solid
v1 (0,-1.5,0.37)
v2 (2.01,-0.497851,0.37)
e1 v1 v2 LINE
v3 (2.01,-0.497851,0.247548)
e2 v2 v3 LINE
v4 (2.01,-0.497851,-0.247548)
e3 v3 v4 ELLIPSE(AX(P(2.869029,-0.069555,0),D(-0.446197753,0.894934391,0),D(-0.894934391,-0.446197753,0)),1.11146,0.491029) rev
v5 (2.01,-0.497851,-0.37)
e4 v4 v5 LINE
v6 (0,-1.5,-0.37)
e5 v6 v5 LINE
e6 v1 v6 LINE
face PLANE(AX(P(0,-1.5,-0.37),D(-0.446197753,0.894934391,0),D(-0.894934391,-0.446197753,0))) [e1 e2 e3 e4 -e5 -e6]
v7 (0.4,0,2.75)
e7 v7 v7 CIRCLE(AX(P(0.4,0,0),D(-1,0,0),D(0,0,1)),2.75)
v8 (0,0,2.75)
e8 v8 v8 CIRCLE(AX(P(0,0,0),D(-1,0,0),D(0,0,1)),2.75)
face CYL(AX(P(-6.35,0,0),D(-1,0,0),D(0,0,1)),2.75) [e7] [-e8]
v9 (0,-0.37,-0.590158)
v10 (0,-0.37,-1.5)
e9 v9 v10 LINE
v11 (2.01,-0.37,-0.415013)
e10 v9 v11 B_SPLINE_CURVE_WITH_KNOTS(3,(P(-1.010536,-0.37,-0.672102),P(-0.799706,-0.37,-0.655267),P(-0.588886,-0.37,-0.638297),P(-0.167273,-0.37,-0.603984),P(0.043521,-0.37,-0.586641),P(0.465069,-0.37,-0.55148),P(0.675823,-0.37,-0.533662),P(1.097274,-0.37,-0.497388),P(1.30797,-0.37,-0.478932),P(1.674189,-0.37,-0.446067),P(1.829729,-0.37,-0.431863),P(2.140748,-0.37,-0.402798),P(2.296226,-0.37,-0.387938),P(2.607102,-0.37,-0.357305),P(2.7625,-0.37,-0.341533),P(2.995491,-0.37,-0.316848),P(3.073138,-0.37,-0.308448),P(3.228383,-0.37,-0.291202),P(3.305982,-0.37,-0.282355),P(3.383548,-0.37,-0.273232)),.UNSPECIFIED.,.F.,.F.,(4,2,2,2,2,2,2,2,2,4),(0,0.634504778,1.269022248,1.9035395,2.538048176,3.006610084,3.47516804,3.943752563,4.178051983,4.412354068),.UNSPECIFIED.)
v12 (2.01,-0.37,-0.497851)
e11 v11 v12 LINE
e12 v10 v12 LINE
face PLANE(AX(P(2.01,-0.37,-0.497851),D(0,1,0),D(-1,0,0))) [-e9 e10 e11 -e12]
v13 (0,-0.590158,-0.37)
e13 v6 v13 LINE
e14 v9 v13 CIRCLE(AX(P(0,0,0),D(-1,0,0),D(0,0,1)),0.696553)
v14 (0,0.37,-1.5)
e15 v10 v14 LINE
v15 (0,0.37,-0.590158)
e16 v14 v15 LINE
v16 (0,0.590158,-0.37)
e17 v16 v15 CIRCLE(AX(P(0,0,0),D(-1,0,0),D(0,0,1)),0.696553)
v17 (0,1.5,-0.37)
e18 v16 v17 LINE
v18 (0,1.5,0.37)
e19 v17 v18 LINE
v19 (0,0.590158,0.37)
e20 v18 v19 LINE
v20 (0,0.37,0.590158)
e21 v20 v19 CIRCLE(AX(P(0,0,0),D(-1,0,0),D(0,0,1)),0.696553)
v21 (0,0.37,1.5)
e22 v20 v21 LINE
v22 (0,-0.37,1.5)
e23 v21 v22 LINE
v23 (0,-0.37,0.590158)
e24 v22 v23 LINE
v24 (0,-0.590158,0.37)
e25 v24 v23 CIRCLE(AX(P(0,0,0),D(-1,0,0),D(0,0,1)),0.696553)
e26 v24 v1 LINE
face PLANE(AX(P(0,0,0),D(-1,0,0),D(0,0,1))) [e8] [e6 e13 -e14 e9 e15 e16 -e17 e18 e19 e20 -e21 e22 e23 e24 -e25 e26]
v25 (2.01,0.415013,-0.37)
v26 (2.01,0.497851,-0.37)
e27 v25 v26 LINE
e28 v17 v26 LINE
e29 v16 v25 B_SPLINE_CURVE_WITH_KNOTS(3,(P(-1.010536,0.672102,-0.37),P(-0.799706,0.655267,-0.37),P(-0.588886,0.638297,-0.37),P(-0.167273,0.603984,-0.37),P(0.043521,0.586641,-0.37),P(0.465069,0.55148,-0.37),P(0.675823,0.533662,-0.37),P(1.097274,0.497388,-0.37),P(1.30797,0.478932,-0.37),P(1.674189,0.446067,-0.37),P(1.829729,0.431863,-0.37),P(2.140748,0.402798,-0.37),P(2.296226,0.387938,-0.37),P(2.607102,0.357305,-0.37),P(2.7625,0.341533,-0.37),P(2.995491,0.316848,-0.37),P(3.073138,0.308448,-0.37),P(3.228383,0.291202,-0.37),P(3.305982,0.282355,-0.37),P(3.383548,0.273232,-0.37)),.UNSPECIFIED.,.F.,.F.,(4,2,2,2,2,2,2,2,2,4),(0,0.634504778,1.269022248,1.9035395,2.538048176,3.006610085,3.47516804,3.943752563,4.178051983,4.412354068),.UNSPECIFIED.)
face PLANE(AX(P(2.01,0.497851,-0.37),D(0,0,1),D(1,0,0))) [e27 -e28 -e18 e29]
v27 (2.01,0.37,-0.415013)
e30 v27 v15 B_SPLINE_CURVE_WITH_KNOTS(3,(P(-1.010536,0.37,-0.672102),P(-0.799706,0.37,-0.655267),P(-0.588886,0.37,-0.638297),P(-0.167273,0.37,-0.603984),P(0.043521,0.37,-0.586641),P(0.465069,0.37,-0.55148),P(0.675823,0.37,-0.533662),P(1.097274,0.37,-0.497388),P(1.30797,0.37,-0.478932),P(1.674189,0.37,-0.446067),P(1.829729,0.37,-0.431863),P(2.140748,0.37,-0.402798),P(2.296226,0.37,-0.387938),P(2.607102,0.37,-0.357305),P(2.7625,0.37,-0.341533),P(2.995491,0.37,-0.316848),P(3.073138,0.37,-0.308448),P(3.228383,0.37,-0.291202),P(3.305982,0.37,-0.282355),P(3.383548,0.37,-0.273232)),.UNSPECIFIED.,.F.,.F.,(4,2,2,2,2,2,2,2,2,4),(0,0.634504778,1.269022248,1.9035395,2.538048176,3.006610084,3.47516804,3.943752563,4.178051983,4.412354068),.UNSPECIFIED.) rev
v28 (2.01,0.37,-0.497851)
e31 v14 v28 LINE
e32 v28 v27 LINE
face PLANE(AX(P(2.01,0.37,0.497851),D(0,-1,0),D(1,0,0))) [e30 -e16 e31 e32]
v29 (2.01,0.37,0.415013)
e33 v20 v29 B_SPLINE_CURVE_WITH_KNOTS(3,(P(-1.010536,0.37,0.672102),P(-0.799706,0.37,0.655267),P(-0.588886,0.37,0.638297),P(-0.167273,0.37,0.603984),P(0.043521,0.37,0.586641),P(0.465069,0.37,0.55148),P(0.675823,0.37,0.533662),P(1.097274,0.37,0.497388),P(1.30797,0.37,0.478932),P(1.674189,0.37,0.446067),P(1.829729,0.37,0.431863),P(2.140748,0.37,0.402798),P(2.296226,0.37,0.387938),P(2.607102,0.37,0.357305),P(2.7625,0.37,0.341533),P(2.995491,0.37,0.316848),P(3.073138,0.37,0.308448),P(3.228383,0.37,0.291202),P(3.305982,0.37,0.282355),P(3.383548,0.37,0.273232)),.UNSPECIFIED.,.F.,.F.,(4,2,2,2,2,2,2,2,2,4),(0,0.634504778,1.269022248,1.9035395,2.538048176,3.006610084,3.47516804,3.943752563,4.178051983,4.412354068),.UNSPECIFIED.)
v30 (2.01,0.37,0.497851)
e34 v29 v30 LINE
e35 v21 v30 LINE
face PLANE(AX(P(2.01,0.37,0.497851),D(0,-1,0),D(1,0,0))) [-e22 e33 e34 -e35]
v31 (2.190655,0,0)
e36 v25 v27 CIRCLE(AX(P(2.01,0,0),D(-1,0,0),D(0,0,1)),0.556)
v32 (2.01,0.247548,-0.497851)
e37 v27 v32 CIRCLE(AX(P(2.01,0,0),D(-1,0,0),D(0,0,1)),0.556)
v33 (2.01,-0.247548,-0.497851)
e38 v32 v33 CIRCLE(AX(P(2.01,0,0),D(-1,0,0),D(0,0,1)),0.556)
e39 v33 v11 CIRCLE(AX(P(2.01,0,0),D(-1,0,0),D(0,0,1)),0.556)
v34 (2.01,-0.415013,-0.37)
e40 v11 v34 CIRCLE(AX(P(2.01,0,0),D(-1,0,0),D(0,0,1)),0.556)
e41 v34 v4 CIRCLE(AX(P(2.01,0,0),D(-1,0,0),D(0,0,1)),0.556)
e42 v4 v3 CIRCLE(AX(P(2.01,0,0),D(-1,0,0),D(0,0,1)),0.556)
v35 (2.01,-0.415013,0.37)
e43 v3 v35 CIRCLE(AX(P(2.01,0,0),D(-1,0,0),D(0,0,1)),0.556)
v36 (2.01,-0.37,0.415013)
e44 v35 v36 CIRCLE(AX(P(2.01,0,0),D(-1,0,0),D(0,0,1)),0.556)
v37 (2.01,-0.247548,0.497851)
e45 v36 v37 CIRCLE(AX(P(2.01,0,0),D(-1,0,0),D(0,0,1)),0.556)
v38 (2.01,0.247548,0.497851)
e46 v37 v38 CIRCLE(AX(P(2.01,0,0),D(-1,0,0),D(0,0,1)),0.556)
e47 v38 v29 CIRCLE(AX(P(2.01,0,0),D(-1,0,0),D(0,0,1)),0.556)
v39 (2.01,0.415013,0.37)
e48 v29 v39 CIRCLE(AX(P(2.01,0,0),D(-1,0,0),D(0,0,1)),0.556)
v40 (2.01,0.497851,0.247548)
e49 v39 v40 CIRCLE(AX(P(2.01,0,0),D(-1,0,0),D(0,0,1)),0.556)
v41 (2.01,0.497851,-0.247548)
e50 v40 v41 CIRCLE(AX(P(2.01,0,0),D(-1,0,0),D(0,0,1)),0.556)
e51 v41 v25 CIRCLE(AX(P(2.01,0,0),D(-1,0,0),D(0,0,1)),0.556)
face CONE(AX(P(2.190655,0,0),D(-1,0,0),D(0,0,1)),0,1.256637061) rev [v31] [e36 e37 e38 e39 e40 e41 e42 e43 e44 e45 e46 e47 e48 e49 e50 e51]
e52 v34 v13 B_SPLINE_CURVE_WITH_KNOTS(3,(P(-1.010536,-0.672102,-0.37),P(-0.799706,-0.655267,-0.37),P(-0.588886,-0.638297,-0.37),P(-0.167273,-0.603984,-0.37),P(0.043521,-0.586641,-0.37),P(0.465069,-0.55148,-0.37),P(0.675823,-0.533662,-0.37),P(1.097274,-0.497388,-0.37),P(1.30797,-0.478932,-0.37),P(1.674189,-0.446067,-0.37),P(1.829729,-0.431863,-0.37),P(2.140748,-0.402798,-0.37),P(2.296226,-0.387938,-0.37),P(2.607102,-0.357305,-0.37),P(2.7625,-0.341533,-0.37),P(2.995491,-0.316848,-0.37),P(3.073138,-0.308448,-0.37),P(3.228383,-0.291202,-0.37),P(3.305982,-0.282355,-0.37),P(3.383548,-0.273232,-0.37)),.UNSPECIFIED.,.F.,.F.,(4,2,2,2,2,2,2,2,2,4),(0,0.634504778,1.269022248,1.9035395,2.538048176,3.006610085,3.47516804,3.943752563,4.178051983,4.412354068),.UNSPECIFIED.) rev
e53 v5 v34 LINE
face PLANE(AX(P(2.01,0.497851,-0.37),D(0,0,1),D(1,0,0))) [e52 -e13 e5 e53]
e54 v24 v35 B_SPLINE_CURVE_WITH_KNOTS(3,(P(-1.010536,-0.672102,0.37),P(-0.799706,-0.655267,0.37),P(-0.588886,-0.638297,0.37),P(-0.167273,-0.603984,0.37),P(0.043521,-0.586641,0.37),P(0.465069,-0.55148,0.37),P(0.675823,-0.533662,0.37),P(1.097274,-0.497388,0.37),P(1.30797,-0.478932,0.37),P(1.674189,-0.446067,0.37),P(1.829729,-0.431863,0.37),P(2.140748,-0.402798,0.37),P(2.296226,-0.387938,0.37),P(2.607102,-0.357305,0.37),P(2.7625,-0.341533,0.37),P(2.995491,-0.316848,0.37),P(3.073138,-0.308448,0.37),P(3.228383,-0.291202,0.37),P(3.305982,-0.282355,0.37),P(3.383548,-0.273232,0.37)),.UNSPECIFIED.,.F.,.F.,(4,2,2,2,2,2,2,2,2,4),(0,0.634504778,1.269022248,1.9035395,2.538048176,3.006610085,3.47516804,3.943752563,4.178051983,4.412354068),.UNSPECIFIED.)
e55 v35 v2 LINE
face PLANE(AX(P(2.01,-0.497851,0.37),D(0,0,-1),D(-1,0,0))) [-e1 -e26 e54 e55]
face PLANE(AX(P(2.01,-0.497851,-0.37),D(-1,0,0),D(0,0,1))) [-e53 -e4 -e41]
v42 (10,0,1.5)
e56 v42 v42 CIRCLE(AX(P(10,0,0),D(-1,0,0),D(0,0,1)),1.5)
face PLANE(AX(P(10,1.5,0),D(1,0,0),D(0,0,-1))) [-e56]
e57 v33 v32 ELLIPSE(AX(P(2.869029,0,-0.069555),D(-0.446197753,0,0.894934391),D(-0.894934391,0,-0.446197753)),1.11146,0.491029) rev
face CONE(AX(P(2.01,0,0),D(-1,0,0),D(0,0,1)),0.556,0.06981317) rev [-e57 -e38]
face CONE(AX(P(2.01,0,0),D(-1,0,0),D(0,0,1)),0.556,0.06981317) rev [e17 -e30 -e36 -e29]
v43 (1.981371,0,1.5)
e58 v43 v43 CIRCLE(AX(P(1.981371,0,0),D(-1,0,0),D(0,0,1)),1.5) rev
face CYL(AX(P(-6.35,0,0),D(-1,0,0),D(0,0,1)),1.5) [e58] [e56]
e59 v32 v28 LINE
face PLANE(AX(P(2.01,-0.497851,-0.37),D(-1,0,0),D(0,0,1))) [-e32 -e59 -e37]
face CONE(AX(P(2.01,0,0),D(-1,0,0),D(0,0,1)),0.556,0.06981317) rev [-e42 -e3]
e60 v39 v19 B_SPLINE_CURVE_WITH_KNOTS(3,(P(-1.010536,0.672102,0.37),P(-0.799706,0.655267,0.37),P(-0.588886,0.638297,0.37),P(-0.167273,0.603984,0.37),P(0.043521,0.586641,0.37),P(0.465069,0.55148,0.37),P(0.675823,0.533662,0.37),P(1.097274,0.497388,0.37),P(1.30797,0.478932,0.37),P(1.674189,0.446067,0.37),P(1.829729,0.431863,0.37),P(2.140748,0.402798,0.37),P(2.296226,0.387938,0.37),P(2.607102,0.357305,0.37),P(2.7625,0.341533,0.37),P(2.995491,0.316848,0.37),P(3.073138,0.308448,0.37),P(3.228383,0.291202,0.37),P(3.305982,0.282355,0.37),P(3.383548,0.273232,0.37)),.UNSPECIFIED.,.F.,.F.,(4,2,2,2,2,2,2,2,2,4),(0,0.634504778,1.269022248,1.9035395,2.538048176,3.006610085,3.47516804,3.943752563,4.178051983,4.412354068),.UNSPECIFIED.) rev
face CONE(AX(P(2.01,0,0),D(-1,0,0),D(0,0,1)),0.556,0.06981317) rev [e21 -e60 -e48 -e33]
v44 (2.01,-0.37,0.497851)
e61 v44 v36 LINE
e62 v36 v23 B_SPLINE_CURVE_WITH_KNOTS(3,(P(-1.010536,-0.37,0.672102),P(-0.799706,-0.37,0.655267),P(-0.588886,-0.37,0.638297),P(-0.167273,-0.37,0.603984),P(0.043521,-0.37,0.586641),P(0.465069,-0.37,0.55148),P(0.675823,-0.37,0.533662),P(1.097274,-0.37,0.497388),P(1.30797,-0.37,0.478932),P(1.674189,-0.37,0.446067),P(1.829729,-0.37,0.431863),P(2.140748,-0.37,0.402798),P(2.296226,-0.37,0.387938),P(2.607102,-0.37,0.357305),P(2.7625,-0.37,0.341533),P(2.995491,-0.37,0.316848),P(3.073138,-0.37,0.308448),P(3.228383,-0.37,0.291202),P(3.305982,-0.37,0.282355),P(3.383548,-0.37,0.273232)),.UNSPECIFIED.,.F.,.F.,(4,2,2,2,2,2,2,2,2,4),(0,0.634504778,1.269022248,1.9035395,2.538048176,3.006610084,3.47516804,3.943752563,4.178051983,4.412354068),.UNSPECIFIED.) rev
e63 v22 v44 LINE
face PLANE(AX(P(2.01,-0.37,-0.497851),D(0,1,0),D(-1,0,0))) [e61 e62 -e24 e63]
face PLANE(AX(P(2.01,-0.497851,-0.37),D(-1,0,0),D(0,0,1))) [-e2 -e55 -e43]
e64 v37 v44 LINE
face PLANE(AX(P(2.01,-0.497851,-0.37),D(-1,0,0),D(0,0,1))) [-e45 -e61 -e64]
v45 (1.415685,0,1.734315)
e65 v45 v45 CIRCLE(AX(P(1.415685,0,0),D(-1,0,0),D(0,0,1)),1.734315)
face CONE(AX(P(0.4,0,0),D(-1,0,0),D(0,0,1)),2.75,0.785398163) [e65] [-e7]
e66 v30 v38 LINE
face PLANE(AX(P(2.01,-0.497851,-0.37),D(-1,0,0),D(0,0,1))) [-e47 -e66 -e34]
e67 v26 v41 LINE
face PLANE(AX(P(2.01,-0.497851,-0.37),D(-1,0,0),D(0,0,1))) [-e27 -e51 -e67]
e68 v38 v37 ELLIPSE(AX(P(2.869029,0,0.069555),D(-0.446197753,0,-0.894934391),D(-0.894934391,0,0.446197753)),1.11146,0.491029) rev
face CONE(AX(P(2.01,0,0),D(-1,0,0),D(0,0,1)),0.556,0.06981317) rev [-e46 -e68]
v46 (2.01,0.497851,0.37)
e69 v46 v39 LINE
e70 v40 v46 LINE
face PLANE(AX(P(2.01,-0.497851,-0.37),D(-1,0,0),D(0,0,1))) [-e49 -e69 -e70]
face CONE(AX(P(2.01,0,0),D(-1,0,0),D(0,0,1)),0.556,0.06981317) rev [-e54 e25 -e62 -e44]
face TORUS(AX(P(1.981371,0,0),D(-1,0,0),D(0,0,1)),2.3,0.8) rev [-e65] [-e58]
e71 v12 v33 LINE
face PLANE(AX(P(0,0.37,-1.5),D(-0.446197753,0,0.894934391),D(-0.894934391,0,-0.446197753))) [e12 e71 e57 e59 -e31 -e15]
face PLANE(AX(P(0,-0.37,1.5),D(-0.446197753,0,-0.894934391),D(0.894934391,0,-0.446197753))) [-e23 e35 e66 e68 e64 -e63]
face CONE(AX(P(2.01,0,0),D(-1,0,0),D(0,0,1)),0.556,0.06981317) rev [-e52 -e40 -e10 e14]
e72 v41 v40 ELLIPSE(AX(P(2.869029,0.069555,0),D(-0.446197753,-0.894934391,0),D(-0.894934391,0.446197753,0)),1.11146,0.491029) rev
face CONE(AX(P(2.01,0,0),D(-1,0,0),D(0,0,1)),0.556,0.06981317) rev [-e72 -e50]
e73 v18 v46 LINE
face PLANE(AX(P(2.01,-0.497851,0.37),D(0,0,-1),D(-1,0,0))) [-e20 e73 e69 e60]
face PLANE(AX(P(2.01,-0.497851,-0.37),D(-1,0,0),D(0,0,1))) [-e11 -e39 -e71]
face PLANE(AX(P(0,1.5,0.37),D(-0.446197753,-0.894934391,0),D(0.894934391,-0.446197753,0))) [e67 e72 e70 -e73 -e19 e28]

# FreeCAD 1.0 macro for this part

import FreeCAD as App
import Part
import Sketcher
Q = App.Units.Quantity


def edges_at(feature, points):
    """Names of the edges that pass closest to the given points."""
    edges = feature.Shape.Edges
    near = lambda p: min(range(len(edges)), key=lambda i: edges[i].distToShape(Part.Vertex(*p))[0])
    return sorted({f"Edge{near(p) + 1}" for p in points})

doc = App.newDocument("Part")
params = doc.addObject("Spreadsheet::Sheet", "Params")
for row, (alias, value) in enumerate([
    ("sketch1_width", "10 mm"),
    ("sketch1_width2", "0.4 mm"),
    ("sketch1_height", "1.5 mm"),
    ("sketch1_width3", "8.35 mm"),
    ("revolution_angle", "360 deg"),
    ("fillet_radius", "0.8 mm"),
    ("sketch2_width", "3 mm"),
    ("sketch2_height", "0.74 mm"),
    ("sketch3_height", "0.74 mm"),
    ("groove_angle", "360 deg"),
], start=1):
    params.set(f"A{row}", alias)
    params.set(f"B{row}", "=" + value)
    params.setAlias(f"B{row}", alias)

body = doc.addObject("PartDesign::Body", "Body")

# Sketch on XY plane
sketch1 = body.newObject("Sketcher::SketchObject", "Sketch")
sketch1.AttachmentSupport = (doc.getObject("XY_Plane"), [""])
sketch1.MapMode = "FlatFace"
sketch1.addGeometry(Part.LineSegment(App.Vector(0, 2.75, 0), App.Vector(0, 0, 0)), False)
sketch1.addGeometry(Part.LineSegment(App.Vector(0, 0, 0), App.Vector(10, 0, 0)), False)
sketch1.addGeometry(Part.LineSegment(App.Vector(10, 0, 0), App.Vector(10, 1.5, 0)), False)
sketch1.addGeometry(Part.LineSegment(App.Vector(10, 1.5, 0), App.Vector(1.65, 1.5, 0)), False)
sketch1.addGeometry(Part.LineSegment(App.Vector(1.65, 1.5, 0), App.Vector(0.4, 2.75, 0)), False)
sketch1.addGeometry(Part.LineSegment(App.Vector(0.4, 2.75, 0), App.Vector(0, 2.75, 0)), False)
sketch1.addConstraint(Sketcher.Constraint("Coincident", 0, 2, 1, 1))
sketch1.addConstraint(Sketcher.Constraint("Coincident", 1, 2, 2, 1))
sketch1.addConstraint(Sketcher.Constraint("Coincident", 2, 2, 3, 1))
sketch1.addConstraint(Sketcher.Constraint("Coincident", 3, 2, 4, 1))
sketch1.addConstraint(Sketcher.Constraint("Coincident", 4, 2, 5, 1))
sketch1.addConstraint(Sketcher.Constraint("Coincident", 5, 2, 0, 1))
sketch1.addConstraint(Sketcher.Constraint("Vertical", 0))
sketch1.addConstraint(Sketcher.Constraint("Horizontal", 1))
sketch1.addConstraint(Sketcher.Constraint("Vertical", 2))
sketch1.addConstraint(Sketcher.Constraint("Horizontal", 3))
sketch1.addConstraint(Sketcher.Constraint("Horizontal", 5))
sketch1.addConstraint(Sketcher.Constraint("Coincident", 0, 2, -1, 1))
sketch1.addConstraint(Sketcher.Constraint("DistanceX", 1, 1, 1, 2, 10.0))
sketch1.addConstraint(Sketcher.Constraint("Angle", 4, Q("135 deg")))
sketch1.addConstraint(Sketcher.Constraint("DistanceX", 5, 2, 5, 1, 0.4))
sketch1.addConstraint(Sketcher.Constraint("DistanceY", 2, 1, 2, 2, 1.5))
sketch1.addConstraint(Sketcher.Constraint("DistanceX", 3, 2, 3, 1, 8.35))
sketch1.setExpression("Constraints[12]", "Params.sketch1_width")
sketch1.setExpression("Constraints[14]", "Params.sketch1_width2")
sketch1.setExpression("Constraints[15]", "Params.sketch1_height")
sketch1.setExpression("Constraints[16]", "Params.sketch1_width3")
revolution = body.newObject("PartDesign::Revolution", "Revolution")
revolution.Profile = sketch1
revolution.ReferenceAxis = (sketch1, ["H_Axis"])
revolution.setExpression("Angle", "Params.revolution_angle")
doc.recompute()

fillet = body.newObject("PartDesign::Fillet", "Fillet")
fillet.Base = (revolution, edges_at(revolution, [(1.65, 0, -1.5)]))
fillet.setExpression("Radius", "Params.fillet_radius")

# Sketch on YZ plane
sketch2 = body.newObject("Sketcher::SketchObject", "Sketch001")
sketch2.AttachmentSupport = (doc.getObject("YZ_Plane"), [""])
sketch2.MapMode = "FlatFace"
sketch2.addGeometry(Part.LineSegment(App.Vector(1.5, 0.4, 0), App.Vector(1.5, -0.4, 0)), False)
sketch2.addGeometry(Part.LineSegment(App.Vector(1.5, -0.4, 0), App.Vector(-1.5, -0.4, 0)), False)
sketch2.addGeometry(Part.LineSegment(App.Vector(-1.5, -0.4, 0), App.Vector(-1.5, 0.4, 0)), False)
sketch2.addGeometry(Part.LineSegment(App.Vector(-1.5, 0.4, 0), App.Vector(1.5, 0.4, 0)), False)
sketch2.addConstraint(Sketcher.Constraint("Coincident", 0, 2, 1, 1))
sketch2.addConstraint(Sketcher.Constraint("Coincident", 1, 2, 2, 1))
sketch2.addConstraint(Sketcher.Constraint("Coincident", 2, 2, 3, 1))
sketch2.addConstraint(Sketcher.Constraint("Coincident", 3, 2, 0, 1))
sketch2.addConstraint(Sketcher.Constraint("Vertical", 0))
sketch2.addConstraint(Sketcher.Constraint("Horizontal", 1))
sketch2.addConstraint(Sketcher.Constraint("Vertical", 2))
sketch2.addConstraint(Sketcher.Constraint("Horizontal", 3))
sketch2.addConstraint(Sketcher.Constraint("Symmetric", 0, 2, 2, 2, -1, 1))
sketch2.addConstraint(Sketcher.Constraint("DistanceX", 1, 2, 1, 1, 3.0))
sketch2.addConstraint(Sketcher.Constraint("DistanceY", 0, 2, 0, 1, 0.74))
sketch2.setExpression("Constraints[9]", "Params.sketch2_width")
sketch2.setExpression("Constraints[10]", "Params.sketch2_height")

# Sketch on YZ plane
sketch3 = body.newObject("Sketcher::SketchObject", "Sketch002")
sketch3.AttachmentSupport = (doc.getObject("YZ_Plane"), [""])
sketch3.MapMode = "FlatFace"
sketch3.AttachmentOffset = App.Placement(App.Vector(0, 0, 2.01), App.Rotation())
sketch3.addGeometry(Part.LineSegment(App.Vector(0.5, 0.4, 0), App.Vector(0.5, -0.4, 0)), False)
sketch3.addGeometry(Part.LineSegment(App.Vector(0.5, -0.4, 0), App.Vector(-0.5, -0.4, 0)), False)
sketch3.addGeometry(Part.LineSegment(App.Vector(-0.5, -0.4, 0), App.Vector(-0.5, 0.4, 0)), False)
sketch3.addGeometry(Part.LineSegment(App.Vector(-0.5, 0.4, 0), App.Vector(0.5, 0.4, 0)), False)
sketch3.addConstraint(Sketcher.Constraint("Coincident", 0, 2, 1, 1))
sketch3.addConstraint(Sketcher.Constraint("Coincident", 1, 2, 2, 1))
sketch3.addConstraint(Sketcher.Constraint("Coincident", 2, 2, 3, 1))
sketch3.addConstraint(Sketcher.Constraint("Coincident", 3, 2, 0, 1))
sketch3.addConstraint(Sketcher.Constraint("Vertical", 0))
sketch3.addConstraint(Sketcher.Constraint("Horizontal", 1))
sketch3.addConstraint(Sketcher.Constraint("Vertical", 2))
sketch3.addConstraint(Sketcher.Constraint("Horizontal", 3))
sketch3.addConstraint(Sketcher.Constraint("Symmetric", 0, 2, 2, 2, -1, 1))
sketch3.addConstraint(Sketcher.Constraint("DistanceY", 0, 2, 0, 1, 0.74))
sketch3.addConstraint(Sketcher.Constraint("DistanceX", 1, 2, 1, 1, 0.995702))
sketch3.setExpression("Constraints[9]", "Params.sketch3_height")

subtractiveloft = body.newObject("PartDesign::SubtractiveLoft", "SubtractiveLoft")
subtractiveloft.Profile = sketch2
subtractiveloft.Sections = [sketch3]
doc.recompute()

polarpattern = body.newObject("PartDesign::PolarPattern", "PolarPattern")
polarpattern.Originals = [subtractiveloft]
polarpattern.Axis = (doc.getObject("X_Axis"), [""])
polarpattern.Angle = 90
polarpattern.Occurrences = 2
body.Tip = polarpattern

# Sketch on XY plane
sketch4 = body.newObject("Sketcher::SketchObject", "Sketch003")
sketch4.AttachmentSupport = (doc.getObject("XY_Plane"), [""])
sketch4.MapMode = "FlatFace"
sketch4.addGeometry(Part.LineSegment(App.Vector(0, 0.7, 0), App.Vector(0, 0, 0)), False)
sketch4.addGeometry(Part.LineSegment(App.Vector(0, 0, 0), App.Vector(2.2, 0, 0)), False)
sketch4.addGeometry(Part.LineSegment(App.Vector(2.2, 0, 0), App.Vector(2, 0.6, 0)), False)
sketch4.addGeometry(Part.LineSegment(App.Vector(2, 0.6, 0), App.Vector(0, 0.7, 0)), False)
sketch4.addConstraint(Sketcher.Constraint("Coincident", 0, 2, 1, 1))
sketch4.addConstraint(Sketcher.Constraint("Coincident", 1, 2, 2, 1))
sketch4.addConstraint(Sketcher.Constraint("Coincident", 2, 2, 3, 1))
sketch4.addConstraint(Sketcher.Constraint("Coincident", 3, 2, 0, 1))
sketch4.addConstraint(Sketcher.Constraint("Vertical", 0))
sketch4.addConstraint(Sketcher.Constraint("Horizontal", 1))
sketch4.addConstraint(Sketcher.Constraint("Coincident", 0, 2, -1, 1))
sketch4.addConstraint(Sketcher.Constraint("Angle", 2, Q("108 deg")))
sketch4.addConstraint(Sketcher.Constraint("Angle", 3, Q("176 deg")))
sketch4.addConstraint(Sketcher.Constraint("DistanceX", -1, 1, 2, 2, 2.01))
sketch4.addConstraint(Sketcher.Constraint("DistanceY", -1, 1, 2, 2, 0.556))
groove = body.newObject("PartDesign::Groove", "Groove")
groove.Profile = sketch4
groove.ReferenceAxis = (sketch4, ["H_Axis"])
groove.setExpression("Angle", "Params.groove_angle")

doc.recompute()
